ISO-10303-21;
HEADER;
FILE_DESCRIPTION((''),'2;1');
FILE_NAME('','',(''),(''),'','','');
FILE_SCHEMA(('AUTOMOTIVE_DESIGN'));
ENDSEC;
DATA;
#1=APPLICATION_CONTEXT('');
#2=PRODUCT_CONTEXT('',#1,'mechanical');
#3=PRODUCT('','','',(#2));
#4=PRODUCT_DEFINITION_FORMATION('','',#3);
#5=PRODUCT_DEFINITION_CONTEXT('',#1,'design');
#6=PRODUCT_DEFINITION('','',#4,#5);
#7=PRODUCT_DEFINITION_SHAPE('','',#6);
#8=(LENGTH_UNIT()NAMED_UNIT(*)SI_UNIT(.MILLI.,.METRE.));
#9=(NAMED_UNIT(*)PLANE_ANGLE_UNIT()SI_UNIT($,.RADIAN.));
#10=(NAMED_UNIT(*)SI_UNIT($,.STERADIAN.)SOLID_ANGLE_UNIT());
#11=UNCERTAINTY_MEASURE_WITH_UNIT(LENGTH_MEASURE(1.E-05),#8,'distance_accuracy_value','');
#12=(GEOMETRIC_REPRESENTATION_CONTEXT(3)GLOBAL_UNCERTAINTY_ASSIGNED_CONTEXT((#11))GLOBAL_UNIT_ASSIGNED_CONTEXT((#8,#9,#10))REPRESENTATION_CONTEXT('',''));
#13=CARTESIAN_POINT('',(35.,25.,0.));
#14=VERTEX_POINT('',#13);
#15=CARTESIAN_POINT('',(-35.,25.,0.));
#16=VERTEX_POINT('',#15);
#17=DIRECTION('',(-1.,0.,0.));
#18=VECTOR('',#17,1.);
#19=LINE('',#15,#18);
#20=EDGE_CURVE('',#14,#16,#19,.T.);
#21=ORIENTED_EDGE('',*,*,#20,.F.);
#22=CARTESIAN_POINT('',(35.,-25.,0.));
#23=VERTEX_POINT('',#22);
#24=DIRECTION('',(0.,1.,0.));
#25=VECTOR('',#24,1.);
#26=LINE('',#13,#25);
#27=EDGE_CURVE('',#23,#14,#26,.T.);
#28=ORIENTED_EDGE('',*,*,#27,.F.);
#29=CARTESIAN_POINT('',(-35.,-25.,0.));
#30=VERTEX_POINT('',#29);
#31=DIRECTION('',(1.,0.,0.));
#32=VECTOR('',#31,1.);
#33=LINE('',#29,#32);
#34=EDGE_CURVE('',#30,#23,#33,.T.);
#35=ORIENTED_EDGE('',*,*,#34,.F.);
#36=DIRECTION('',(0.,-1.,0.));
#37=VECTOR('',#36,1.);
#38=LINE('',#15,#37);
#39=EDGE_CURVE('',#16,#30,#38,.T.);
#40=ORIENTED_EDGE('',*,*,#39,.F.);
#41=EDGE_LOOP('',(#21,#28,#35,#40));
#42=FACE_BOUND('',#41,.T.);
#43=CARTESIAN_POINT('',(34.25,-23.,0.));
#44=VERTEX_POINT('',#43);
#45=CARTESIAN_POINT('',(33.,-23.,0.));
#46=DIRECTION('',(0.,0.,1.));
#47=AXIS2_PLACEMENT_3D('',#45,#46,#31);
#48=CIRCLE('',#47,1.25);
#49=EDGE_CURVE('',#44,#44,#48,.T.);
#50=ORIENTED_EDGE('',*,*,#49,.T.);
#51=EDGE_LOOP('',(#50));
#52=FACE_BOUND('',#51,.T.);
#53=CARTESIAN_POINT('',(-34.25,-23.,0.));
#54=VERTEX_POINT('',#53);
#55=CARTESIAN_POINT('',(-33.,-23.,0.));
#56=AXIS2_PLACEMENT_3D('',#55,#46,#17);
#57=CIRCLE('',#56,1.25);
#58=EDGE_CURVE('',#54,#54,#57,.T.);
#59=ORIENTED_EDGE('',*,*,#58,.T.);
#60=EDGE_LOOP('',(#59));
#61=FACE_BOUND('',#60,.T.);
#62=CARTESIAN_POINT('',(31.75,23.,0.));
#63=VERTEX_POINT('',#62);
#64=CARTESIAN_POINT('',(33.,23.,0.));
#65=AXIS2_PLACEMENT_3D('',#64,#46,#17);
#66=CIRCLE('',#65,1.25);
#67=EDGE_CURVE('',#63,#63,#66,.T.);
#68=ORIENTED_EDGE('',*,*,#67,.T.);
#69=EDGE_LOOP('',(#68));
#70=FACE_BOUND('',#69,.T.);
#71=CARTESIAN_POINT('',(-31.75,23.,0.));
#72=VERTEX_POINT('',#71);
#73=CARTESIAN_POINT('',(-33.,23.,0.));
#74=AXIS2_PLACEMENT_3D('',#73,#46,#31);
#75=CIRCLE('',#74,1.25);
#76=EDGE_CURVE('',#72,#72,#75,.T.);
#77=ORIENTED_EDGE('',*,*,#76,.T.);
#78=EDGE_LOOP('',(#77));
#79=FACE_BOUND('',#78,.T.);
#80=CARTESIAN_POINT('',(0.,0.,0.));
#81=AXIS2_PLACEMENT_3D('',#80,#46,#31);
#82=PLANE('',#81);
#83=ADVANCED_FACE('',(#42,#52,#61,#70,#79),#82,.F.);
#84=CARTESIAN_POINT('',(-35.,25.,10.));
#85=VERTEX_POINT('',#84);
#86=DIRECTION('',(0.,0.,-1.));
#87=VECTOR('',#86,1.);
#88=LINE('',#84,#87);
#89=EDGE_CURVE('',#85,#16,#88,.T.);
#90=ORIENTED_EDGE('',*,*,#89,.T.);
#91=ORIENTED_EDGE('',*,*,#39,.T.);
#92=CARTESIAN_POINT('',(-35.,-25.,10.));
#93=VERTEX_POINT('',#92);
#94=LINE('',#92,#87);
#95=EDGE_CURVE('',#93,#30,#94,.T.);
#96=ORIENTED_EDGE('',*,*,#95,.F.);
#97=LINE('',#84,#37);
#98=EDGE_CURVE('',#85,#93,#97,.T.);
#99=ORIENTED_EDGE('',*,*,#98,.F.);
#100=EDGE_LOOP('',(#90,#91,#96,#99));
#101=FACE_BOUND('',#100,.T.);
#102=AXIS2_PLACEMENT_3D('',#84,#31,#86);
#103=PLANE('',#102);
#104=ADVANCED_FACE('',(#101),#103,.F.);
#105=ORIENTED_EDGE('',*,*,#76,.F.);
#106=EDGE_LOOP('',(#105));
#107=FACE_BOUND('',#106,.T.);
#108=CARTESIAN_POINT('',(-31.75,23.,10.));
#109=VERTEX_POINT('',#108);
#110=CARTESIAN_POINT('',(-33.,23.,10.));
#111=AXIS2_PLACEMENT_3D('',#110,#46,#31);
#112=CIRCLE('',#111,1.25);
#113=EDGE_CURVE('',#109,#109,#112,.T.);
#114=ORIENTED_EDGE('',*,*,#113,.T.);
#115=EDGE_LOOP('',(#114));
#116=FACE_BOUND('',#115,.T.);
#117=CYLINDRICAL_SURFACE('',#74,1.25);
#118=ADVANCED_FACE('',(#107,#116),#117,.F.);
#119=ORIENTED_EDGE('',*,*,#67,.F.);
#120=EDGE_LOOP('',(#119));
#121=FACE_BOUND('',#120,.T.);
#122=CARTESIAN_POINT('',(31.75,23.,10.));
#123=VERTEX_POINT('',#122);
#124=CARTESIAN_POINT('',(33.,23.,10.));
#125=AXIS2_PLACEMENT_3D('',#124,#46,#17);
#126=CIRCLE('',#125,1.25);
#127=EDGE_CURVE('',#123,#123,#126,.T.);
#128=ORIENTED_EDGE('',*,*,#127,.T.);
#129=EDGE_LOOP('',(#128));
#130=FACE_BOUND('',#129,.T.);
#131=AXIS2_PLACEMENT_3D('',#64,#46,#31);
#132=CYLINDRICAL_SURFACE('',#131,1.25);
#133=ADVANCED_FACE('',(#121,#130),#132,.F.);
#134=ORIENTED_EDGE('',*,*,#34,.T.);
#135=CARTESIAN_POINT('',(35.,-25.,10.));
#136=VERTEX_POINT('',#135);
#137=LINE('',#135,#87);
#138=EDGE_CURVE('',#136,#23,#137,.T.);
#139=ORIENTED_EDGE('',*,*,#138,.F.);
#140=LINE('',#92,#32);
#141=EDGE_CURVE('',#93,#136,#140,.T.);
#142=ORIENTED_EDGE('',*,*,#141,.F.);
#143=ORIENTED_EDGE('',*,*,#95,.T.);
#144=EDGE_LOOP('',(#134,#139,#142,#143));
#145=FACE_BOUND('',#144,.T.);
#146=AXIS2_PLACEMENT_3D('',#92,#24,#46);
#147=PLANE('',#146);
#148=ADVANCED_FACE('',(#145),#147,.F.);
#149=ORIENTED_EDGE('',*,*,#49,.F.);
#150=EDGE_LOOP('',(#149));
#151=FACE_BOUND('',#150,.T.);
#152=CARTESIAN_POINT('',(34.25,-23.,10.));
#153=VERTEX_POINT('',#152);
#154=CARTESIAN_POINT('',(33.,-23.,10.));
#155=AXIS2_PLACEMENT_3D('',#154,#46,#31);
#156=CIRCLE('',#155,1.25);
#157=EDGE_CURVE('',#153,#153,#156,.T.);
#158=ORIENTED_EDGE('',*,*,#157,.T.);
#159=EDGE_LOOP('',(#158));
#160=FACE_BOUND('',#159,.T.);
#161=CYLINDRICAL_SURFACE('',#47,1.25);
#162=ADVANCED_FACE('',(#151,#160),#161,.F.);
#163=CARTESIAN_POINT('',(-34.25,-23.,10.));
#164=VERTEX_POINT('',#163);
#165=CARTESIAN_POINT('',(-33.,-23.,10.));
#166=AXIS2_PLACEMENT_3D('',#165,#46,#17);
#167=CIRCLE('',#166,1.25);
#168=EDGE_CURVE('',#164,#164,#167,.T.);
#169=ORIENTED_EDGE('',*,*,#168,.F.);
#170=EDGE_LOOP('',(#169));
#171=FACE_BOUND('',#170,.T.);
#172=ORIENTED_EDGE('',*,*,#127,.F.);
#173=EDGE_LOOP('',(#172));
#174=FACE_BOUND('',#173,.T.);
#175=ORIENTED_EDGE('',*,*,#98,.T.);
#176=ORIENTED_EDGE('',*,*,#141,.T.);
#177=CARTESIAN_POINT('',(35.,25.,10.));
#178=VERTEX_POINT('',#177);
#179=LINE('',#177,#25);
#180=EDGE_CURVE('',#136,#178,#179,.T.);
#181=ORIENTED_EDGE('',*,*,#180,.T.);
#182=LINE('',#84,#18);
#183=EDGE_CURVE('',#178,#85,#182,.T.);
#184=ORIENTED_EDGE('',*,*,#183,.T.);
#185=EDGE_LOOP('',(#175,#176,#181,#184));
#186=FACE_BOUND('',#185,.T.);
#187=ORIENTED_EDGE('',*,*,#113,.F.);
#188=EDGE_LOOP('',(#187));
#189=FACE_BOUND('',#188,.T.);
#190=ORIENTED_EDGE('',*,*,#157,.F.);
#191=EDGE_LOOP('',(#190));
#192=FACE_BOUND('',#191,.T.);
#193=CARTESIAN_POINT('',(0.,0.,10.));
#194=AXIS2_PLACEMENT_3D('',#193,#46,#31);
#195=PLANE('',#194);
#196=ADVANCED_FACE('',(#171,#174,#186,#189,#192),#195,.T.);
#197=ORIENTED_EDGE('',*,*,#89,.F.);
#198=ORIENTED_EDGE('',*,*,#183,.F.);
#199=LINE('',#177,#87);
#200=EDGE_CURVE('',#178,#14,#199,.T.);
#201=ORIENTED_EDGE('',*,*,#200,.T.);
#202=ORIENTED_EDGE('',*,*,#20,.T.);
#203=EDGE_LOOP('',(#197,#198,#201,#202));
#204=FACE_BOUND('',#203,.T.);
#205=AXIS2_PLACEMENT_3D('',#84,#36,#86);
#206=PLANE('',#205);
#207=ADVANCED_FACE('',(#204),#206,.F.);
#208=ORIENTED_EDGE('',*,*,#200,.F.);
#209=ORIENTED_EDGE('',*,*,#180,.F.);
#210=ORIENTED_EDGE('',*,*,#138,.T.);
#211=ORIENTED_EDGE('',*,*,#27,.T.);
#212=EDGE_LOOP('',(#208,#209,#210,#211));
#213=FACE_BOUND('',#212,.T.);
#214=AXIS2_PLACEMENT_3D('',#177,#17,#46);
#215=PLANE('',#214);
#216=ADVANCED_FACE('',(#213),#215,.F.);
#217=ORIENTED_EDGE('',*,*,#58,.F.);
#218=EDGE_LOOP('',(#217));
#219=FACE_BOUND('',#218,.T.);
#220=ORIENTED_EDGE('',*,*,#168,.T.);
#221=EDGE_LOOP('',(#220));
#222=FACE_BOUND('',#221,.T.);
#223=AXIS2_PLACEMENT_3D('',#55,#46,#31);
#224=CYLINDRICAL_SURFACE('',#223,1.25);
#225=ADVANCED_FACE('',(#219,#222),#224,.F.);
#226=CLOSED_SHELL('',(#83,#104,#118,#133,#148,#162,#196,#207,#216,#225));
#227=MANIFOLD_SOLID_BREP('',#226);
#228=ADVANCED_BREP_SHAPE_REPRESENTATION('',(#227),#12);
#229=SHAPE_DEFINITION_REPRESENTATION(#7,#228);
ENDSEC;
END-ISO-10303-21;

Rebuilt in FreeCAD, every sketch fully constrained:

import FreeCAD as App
import Part
import Sketcher
Q = App.Units.Quantity

doc = App.newDocument("Part")
body = doc.addObject("PartDesign::Body", "Body")

# Sketch on XY plane
sketch1 = doc.addObject("Sketcher::SketchObject", "Sketch")
body.addObject(sketch1)
sketch1.AttachmentSupport = (doc.XY_Plane, [""])
sketch1.MapMode = "FlatFace"
sketch1.addGeometry(Part.LineSegment(App.Vector(-35, 25, 0), App.Vector(-35, -25, 0)), False)
sketch1.addGeometry(Part.LineSegment(App.Vector(-35, -25, 0), App.Vector(35, -25, 0)), False)
sketch1.addGeometry(Part.LineSegment(App.Vector(35, -25, 0), App.Vector(35, 25, 0)), False)
sketch1.addGeometry(Part.LineSegment(App.Vector(35, 25, 0), App.Vector(-35, 25, 0)), False)
sketch1.addConstraint(Sketcher.Constraint("Coincident", 0, 2, 1, 1))
sketch1.addConstraint(Sketcher.Constraint("Coincident", 1, 2, 2, 1))
sketch1.addConstraint(Sketcher.Constraint("Coincident", 2, 2, 3, 1))
sketch1.addConstraint(Sketcher.Constraint("Coincident", 3, 2, 0, 1))
sketch1.addConstraint(Sketcher.Constraint("Vertical", 0))
sketch1.addConstraint(Sketcher.Constraint("Horizontal", 1))
sketch1.addConstraint(Sketcher.Constraint("Vertical", 2))
sketch1.addConstraint(Sketcher.Constraint("Horizontal", 3))
sketch1.addConstraint(Sketcher.Constraint("Symmetric", 0, 2, 2, 2, -1, 1))
sketch1.addConstraint(Sketcher.Constraint("DistanceX", 1, 1, 1, 2, Q("70 mm")))
sketch1.addConstraint(Sketcher.Constraint("DistanceY", 0, 2, 0, 1, Q("50 mm")))
pad1 = doc.addObject("PartDesign::Pad", "Pad")
body.addObject(pad1)
pad1.Profile = sketch1
pad1.Length = 10

# Sketch on XY plane
sketch2 = doc.addObject("Sketcher::SketchObject", "Sketch001")
body.addObject(sketch2)
sketch2.AttachmentSupport = (doc.XY_Plane, [""])
sketch2.MapMode = "FlatFace"
sketch2.AttachmentOffset = App.Placement(App.Vector(0, 0, 10), App.Rotation())
sketch2.addGeometry(Part.Circle(App.Vector(-33, 23, 0), App.Vector(0, 0, 1), 1.2), False)
sketch2.addGeometry(Part.Circle(App.Vector(33, 23, 0), App.Vector(0, 0, 1), 1.2), False)
sketch2.addGeometry(Part.Circle(App.Vector(33, -23, 0), App.Vector(0, 0, 1), 1.2), False)
sketch2.addGeometry(Part.Circle(App.Vector(-33, -23, 0), App.Vector(0, 0, 1), 1.2), False)
sketch2.addConstraint(Sketcher.Constraint("Equal", 0, 1))
sketch2.addConstraint(Sketcher.Constraint("Equal", 1, 2))
sketch2.addConstraint(Sketcher.Constraint("Equal", 2, 3))
sketch2.addConstraint(Sketcher.Constraint("Symmetric", 0, 3, 2, 3, -1, 1))
sketch2.addConstraint(Sketcher.Constraint("Symmetric", 1, 3, 3, 3, -1, 1))
sketch2.addConstraint(Sketcher.Constraint("Symmetric", 0, 3, 1, 3, -2))
sketch2.addConstraint(Sketcher.Constraint("Diameter", 0, Q("2.5 mm")))
sketch2.addConstraint(Sketcher.Constraint("DistanceX", 0, 3, -1, 1, Q("33 mm")))
sketch2.addConstraint(Sketcher.Constraint("DistanceY", -1, 1, 0, 3, Q("23 mm")))
pocket1 = doc.addObject("PartDesign::Pocket", "Pocket")
body.addObject(pocket1)
pocket1.Profile = sketch2
pocket1.Type = "ThroughAll"

doc.recompute()
